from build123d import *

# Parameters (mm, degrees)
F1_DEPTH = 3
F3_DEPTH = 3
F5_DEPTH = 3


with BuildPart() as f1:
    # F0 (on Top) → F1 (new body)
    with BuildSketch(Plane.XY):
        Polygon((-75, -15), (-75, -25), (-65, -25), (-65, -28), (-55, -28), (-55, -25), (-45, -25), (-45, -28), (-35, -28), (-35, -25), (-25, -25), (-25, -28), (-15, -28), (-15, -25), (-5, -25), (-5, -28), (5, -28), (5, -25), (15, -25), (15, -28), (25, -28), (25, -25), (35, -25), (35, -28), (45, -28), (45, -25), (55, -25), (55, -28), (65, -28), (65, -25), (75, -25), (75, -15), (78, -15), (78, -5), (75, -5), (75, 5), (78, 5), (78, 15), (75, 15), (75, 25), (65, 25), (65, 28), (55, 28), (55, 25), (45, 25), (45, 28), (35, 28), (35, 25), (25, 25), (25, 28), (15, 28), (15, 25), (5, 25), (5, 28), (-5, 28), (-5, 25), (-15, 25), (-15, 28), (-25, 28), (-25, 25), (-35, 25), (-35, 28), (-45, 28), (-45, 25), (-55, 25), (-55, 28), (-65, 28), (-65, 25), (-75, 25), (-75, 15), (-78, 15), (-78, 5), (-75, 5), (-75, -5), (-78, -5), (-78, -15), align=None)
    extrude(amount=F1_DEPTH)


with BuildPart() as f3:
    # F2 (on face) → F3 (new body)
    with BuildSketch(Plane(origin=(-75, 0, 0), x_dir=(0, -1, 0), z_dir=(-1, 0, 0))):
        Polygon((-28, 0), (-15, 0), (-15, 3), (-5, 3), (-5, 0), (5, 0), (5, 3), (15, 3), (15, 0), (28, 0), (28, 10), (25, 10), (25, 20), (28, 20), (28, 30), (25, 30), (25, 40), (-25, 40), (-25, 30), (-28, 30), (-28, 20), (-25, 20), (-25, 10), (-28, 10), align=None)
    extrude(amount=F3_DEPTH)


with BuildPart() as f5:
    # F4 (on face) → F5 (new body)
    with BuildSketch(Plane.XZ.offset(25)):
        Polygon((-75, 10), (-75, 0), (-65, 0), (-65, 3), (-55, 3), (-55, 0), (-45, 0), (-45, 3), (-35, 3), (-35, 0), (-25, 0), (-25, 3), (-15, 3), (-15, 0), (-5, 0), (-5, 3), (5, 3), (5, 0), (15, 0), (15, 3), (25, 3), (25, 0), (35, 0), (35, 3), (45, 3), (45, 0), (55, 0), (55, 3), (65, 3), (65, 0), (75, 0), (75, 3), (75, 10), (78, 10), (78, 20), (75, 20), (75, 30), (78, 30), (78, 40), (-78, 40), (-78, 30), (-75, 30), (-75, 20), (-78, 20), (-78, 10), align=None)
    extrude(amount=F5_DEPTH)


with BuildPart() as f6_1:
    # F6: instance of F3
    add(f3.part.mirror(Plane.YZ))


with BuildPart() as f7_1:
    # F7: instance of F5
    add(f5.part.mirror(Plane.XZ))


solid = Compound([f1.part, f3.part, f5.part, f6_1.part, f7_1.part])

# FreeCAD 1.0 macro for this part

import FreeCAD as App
import Part
import Sketcher

V = App.Vector
Q = App.Units.Quantity

doc = App.newDocument("Part")
params = doc.addObject("Spreadsheet::Sheet", "Params")
for row, (alias, value) in enumerate([
    ("sketch1_width", "10 mm"),
    ("sketch1_width2", "3 mm"),
    ("pad1_length", "3 mm"),
    ("sketch2_width", "13 mm"),
    ("sketch2_width2", "10 mm"),
    ("sketch2_width3", "3 mm"),
    ("pad2_length", "3 mm"),
    ("sketch3_width", "10 mm"),
    ("sketch3_width2", "3 mm"),
    ("pad3_length", "3 mm"),
], start=1):
    params.set(f"A{row}", alias)
    params.set(f"B{row}", "=" + value)
    params.setAlias(f"B{row}", alias)

body = doc.addObject("PartDesign::Body", "Body")

# Sketch on XY plane
sketch1 = body.newObject("Sketcher::SketchObject", "Sketch")
sketch1.AttachmentSupport = (doc.getObject("XY_Plane"), [""])
sketch1.MapMode = "FlatFace"
sketch1.addGeometry(Part.LineSegment(V(-75, -15, 0), V(-75, -25, 0)), False)
sketch1.addGeometry(Part.LineSegment(V(-75, -25, 0), V(-65, -25, 0)), False)
sketch1.addGeometry(Part.LineSegment(V(-65, -25, 0), V(-65, -28, 0)), False)
sketch1.addGeometry(Part.LineSegment(V(-65, -28, 0), V(-55, -28, 0)), False)
sketch1.addGeometry(Part.LineSegment(V(-55, -28, 0), V(-55, -25, 0)), False)
sketch1.addGeometry(Part.LineSegment(V(-55, -25, 0), V(-45, -25, 0)), False)
sketch1.addGeometry(Part.LineSegment(V(-45, -25, 0), V(-45, -28, 0)), False)
sketch1.addGeometry(Part.LineSegment(V(-45, -28, 0), V(-35, -28, 0)), False)
sketch1.addGeometry(Part.LineSegment(V(-35, -28, 0), V(-35, -25, 0)), False)
sketch1.addGeometry(Part.LineSegment(V(-35, -25, 0), V(-25, -25, 0)), False)
sketch1.addGeometry(Part.LineSegment(V(-25, -25, 0), V(-25, -28, 0)), False)
sketch1.addGeometry(Part.LineSegment(V(-25, -28, 0), V(-15, -28, 0)), False)
sketch1.addGeometry(Part.LineSegment(V(-15, -28, 0), V(-15, -25, 0)), False)
sketch1.addGeometry(Part.LineSegment(V(-15, -25, 0), V(-5, -25, 0)), False)
sketch1.addGeometry(Part.LineSegment(V(-5, -25, 0), V(-5, -28, 0)), False)
sketch1.addGeometry(Part.LineSegment(V(-5, -28, 0), V(5, -28, 0)), False)
sketch1.addGeometry(Part.LineSegment(V(5, -28, 0), V(5, -25, 0)), False)
sketch1.addGeometry(Part.LineSegment(V(5, -25, 0), V(15, -25, 0)), False)
sketch1.addGeometry(Part.LineSegment(V(15, -25, 0), V(15, -28, 0)), False)
sketch1.addGeometry(Part.LineSegment(V(15, -28, 0), V(25, -28, 0)), False)
sketch1.addGeometry(Part.LineSegment(V(25, -28, 0), V(25, -25, 0)), False)
sketch1.addGeometry(Part.LineSegment(V(25, -25, 0), V(35, -25, 0)), False)
sketch1.addGeometry(Part.LineSegment(V(35, -25, 0), V(35, -28, 0)), False)
sketch1.addGeometry(Part.LineSegment(V(35, -28, 0), V(45, -28, 0)), False)
sketch1.addGeometry(Part.LineSegment(V(45, -28, 0), V(45, -25, 0)), False)
sketch1.addGeometry(Part.LineSegment(V(45, -25, 0), V(55, -25, 0)), False)
sketch1.addGeometry(Part.LineSegment(V(55, -25, 0), V(55, -28, 0)), False)
sketch1.addGeometry(Part.LineSegment(V(55, -28, 0), V(65, -28, 0)), False)
sketch1.addGeometry(Part.LineSegment(V(65, -28, 0), V(65, -25, 0)), False)
sketch1.addGeometry(Part.LineSegment(V(65, -25, 0), V(75, -25, 0)), False)
sketch1.addGeometry(Part.LineSegment(V(75, -25, 0), V(75, -15, 0)), False)
sketch1.addGeometry(Part.LineSegment(V(75, -15, 0), V(78, -15, 0)), False)
sketch1.addGeometry(Part.LineSegment(V(78, -15, 0), V(78, -5, 0)), False)
sketch1.addGeometry(Part.LineSegment(V(78, -5, 0), V(75, -5, 0)), False)
sketch1.addGeometry(Part.LineSegment(V(75, -5, 0), V(75, 5, 0)), False)
sketch1.addGeometry(Part.LineSegment(V(75, 5, 0), V(78, 5, 0)), False)
sketch1.addGeometry(Part.LineSegment(V(78, 5, 0), V(78, 15, 0)), False)
sketch1.addGeometry(Part.LineSegment(V(78, 15, 0), V(75, 15, 0)), False)
sketch1.addGeometry(Part.LineSegment(V(75, 15, 0), V(75, 25, 0)), False)
sketch1.addGeometry(Part.LineSegment(V(75, 25, 0), V(65, 25, 0)), False)
sketch1.addGeometry(Part.LineSegment(V(65, 25, 0), V(65, 28, 0)), False)
sketch1.addGeometry(Part.LineSegment(V(65, 28, 0), V(55, 28, 0)), False)
sketch1.addGeometry(Part.LineSegment(V(55, 28, 0), V(55, 25, 0)), False)
sketch1.addGeometry(Part.LineSegment(V(55, 25, 0), V(45, 25, 0)), False)
sketch1.addGeometry(Part.LineSegment(V(45, 25, 0), V(45, 28, 0)), False)
sketch1.addGeometry(Part.LineSegment(V(45, 28, 0), V(35, 28, 0)), False)
sketch1.addGeometry(Part.LineSegment(V(35, 28, 0), V(35, 25, 0)), False)
sketch1.addGeometry(Part.LineSegment(V(35, 25, 0), V(25, 25, 0)), False)
sketch1.addGeometry(Part.LineSegment(V(25, 25, 0), V(25, 28, 0)), False)
sketch1.addGeometry(Part.LineSegment(V(25, 28, 0), V(15, 28, 0)), False)
sketch1.addGeometry(Part.LineSegment(V(15, 28, 0), V(15, 25, 0)), False)
sketch1.addGeometry(Part.LineSegment(V(15, 25, 0), V(5, 25, 0)), False)
sketch1.addGeometry(Part.LineSegment(V(5, 25, 0), V(5, 28, 0)), False)
sketch1.addGeometry(Part.LineSegment(V(5, 28, 0), V(-5, 28, 0)), False)
sketch1.addGeometry(Part.LineSegment(V(-5, 28, 0), V(-5, 25, 0)), False)
sketch1.addGeometry(Part.LineSegment(V(-5, 25, 0), V(-15, 25, 0)), False)
sketch1.addGeometry(Part.LineSegment(V(-15, 25, 0), V(-15, 28, 0)), False)
sketch1.addGeometry(Part.LineSegment(V(-15, 28, 0), V(-25, 28, 0)), False)
sketch1.addGeometry(Part.LineSegment(V(-25, 28, 0), V(-25, 25, 0)), False)
sketch1.addGeometry(Part.LineSegment(V(-25, 25, 0), V(-35, 25, 0)), False)
sketch1.addGeometry(Part.LineSegment(V(-35, 25, 0), V(-35, 28, 0)), False)
sketch1.addGeometry(Part.LineSegment(V(-35, 28, 0), V(-45, 28, 0)), False)
sketch1.addGeometry(Part.LineSegment(V(-45, 28, 0), V(-45, 25, 0)), False)
sketch1.addGeometry(Part.LineSegment(V(-45, 25, 0), V(-55, 25, 0)), False)
sketch1.addGeometry(Part.LineSegment(V(-55, 25, 0), V(-55, 28, 0)), False)
sketch1.addGeometry(Part.LineSegment(V(-55, 28, 0), V(-65, 28, 0)), False)
sketch1.addGeometry(Part.LineSegment(V(-65, 28, 0), V(-65, 25, 0)), False)
sketch1.addGeometry(Part.LineSegment(V(-65, 25, 0), V(-75, 25, 0)), False)
sketch1.addGeometry(Part.LineSegment(V(-75, 25, 0), V(-75, 15, 0)), False)
sketch1.addGeometry(Part.LineSegment(V(-75, 15, 0), V(-78, 15, 0)), False)
sketch1.addGeometry(Part.LineSegment(V(-78, 15, 0), V(-78, 5, 0)), False)
sketch1.addGeometry(Part.LineSegment(V(-78, 5, 0), V(-75, 5, 0)), False)
sketch1.addGeometry(Part.LineSegment(V(-75, 5, 0), V(-75, -5, 0)), False)
sketch1.addGeometry(Part.LineSegment(V(-75, -5, 0), V(-78, -5, 0)), False)
sketch1.addGeometry(Part.LineSegment(V(-78, -5, 0), V(-78, -15, 0)), False)
sketch1.addGeometry(Part.LineSegment(V(-78, -15, 0), V(-75, -15, 0)), False)
sketch1.addConstraint(Sketcher.Constraint("Coincident", 0, 2, 1, 1))
sketch1.addConstraint(Sketcher.Constraint("Coincident", 1, 2, 2, 1))
sketch1.addConstraint(Sketcher.Constraint("Coincident", 2, 2, 3, 1))
sketch1.addConstraint(Sketcher.Constraint("Coincident", 3, 2, 4, 1))
sketch1.addConstraint(Sketcher.Constraint("Coincident", 4, 2, 5, 1))
sketch1.addConstraint(Sketcher.Constraint("Coincident", 5, 2, 6, 1))
sketch1.addConstraint(Sketcher.Constraint("Coincident", 6, 2, 7, 1))
sketch1.addConstraint(Sketcher.Constraint("Coincident", 7, 2, 8, 1))
sketch1.addConstraint(Sketcher.Constraint("Coincident", 8, 2, 9, 1))
sketch1.addConstraint(Sketcher.Constraint("Coincident", 9, 2, 10, 1))
sketch1.addConstraint(Sketcher.Constraint("Coincident", 10, 2, 11, 1))
sketch1.addConstraint(Sketcher.Constraint("Coincident", 11, 2, 12, 1))
sketch1.addConstraint(Sketcher.Constraint("Coincident", 12, 2, 13, 1))
sketch1.addConstraint(Sketcher.Constraint("Coincident", 13, 2, 14, 1))
sketch1.addConstraint(Sketcher.Constraint("Coincident", 14, 2, 15, 1))
sketch1.addConstraint(Sketcher.Constraint("Coincident", 15, 2, 16, 1))
sketch1.addConstraint(Sketcher.Constraint("Coincident", 16, 2, 17, 1))
sketch1.addConstraint(Sketcher.Constraint("Coincident", 17, 2, 18, 1))
sketch1.addConstraint(Sketcher.Constraint("Coincident", 18, 2, 19, 1))
sketch1.addConstraint(Sketcher.Constraint("Coincident", 19, 2, 20, 1))
sketch1.addConstraint(Sketcher.Constraint("Coincident", 20, 2, 21, 1))
sketch1.addConstraint(Sketcher.Constraint("Coincident", 21, 2, 22, 1))
sketch1.addConstraint(Sketcher.Constraint("Coincident", 22, 2, 23, 1))
sketch1.addConstraint(Sketcher.Constraint("Coincident", 23, 2, 24, 1))
sketch1.addConstraint(Sketcher.Constraint("Coincident", 24, 2, 25, 1))
sketch1.addConstraint(Sketcher.Constraint("Coincident", 25, 2, 26, 1))
sketch1.addConstraint(Sketcher.Constraint("Coincident", 26, 2, 27, 1))
sketch1.addConstraint(Sketcher.Constraint("Coincident", 27, 2, 28, 1))
sketch1.addConstraint(Sketcher.Constraint("Coincident", 28, 2, 29, 1))
sketch1.addConstraint(Sketcher.Constraint("Coincident", 29, 2, 30, 1))
sketch1.addConstraint(Sketcher.Constraint("Coincident", 30, 2, 31, 1))
sketch1.addConstraint(Sketcher.Constraint("Coincident", 31, 2, 32, 1))
sketch1.addConstraint(Sketcher.Constraint("Coincident", 32, 2, 33, 1))
sketch1.addConstraint(Sketcher.Constraint("Coincident", 33, 2, 34, 1))
sketch1.addConstraint(Sketcher.Constraint("Coincident", 34, 2, 35, 1))
sketch1.addConstraint(Sketcher.Constraint("Coincident", 35, 2, 36, 1))
sketch1.addConstraint(Sketcher.Constraint("Coincident", 36, 2, 37, 1))
sketch1.addConstraint(Sketcher.Constraint("Coincident", 37, 2, 38, 1))
sketch1.addConstraint(Sketcher.Constraint("Coincident", 38, 2, 39, 1))
sketch1.addConstraint(Sketcher.Constraint("Coincident", 39, 2, 40, 1))
sketch1.addConstraint(Sketcher.Constraint("Coincident", 40, 2, 41, 1))
sketch1.addConstraint(Sketcher.Constraint("Coincident", 41, 2, 42, 1))
sketch1.addConstraint(Sketcher.Constraint("Coincident", 42, 2, 43, 1))
sketch1.addConstraint(Sketcher.Constraint("Coincident", 43, 2, 44, 1))
sketch1.addConstraint(Sketcher.Constraint("Coincident", 44, 2, 45, 1))
sketch1.addConstraint(Sketcher.Constraint("Coincident", 45, 2, 46, 1))
sketch1.addConstraint(Sketcher.Constraint("Coincident", 46, 2, 47, 1))
sketch1.addConstraint(Sketcher.Constraint("Coincident", 47, 2, 48, 1))
sketch1.addConstraint(Sketcher.Constraint("Coincident", 48, 2, 49, 1))
sketch1.addConstraint(Sketcher.Constraint("Coincident", 49, 2, 50, 1))
sketch1.addConstraint(Sketcher.Constraint("Coincident", 50, 2, 51, 1))
sketch1.addConstraint(Sketcher.Constraint("Coincident", 51, 2, 52, 1))
sketch1.addConstraint(Sketcher.Constraint("Coincident", 52, 2, 53, 1))
sketch1.addConstraint(Sketcher.Constraint("Coincident", 53, 2, 54, 1))
sketch1.addConstraint(Sketcher.Constraint("Coincident", 54, 2, 55, 1))
sketch1.addConstraint(Sketcher.Constraint("Coincident", 55, 2, 56, 1))
sketch1.addConstraint(Sketcher.Constraint("Coincident", 56, 2, 57, 1))
sketch1.addConstraint(Sketcher.Constraint("Coincident", 57, 2, 58, 1))
sketch1.addConstraint(Sketcher.Constraint("Coincident", 58, 2, 59, 1))
sketch1.addConstraint(Sketcher.Constraint("Coincident", 59, 2, 60, 1))
sketch1.addConstraint(Sketcher.Constraint("Coincident", 60, 2, 61, 1))
sketch1.addConstraint(Sketcher.Constraint("Coincident", 61, 2, 62, 1))
sketch1.addConstraint(Sketcher.Constraint("Coincident", 62, 2, 63, 1))
sketch1.addConstraint(Sketcher.Constraint("Coincident", 63, 2, 64, 1))
sketch1.addConstraint(Sketcher.Constraint("Coincident", 64, 2, 65, 1))
sketch1.addConstraint(Sketcher.Constraint("Coincident", 65, 2, 66, 1))
sketch1.addConstraint(Sketcher.Constraint("Coincident", 66, 2, 67, 1))
sketch1.addConstraint(Sketcher.Constraint("Coincident", 67, 2, 68, 1))
sketch1.addConstraint(Sketcher.Constraint("Coincident", 68, 2, 69, 1))
sketch1.addConstraint(Sketcher.Constraint("Coincident", 69, 2, 70, 1))
sketch1.addConstraint(Sketcher.Constraint("Coincident", 70, 2, 71, 1))
sketch1.addConstraint(Sketcher.Constraint("Coincident", 71, 2, 72, 1))
sketch1.addConstraint(Sketcher.Constraint("Coincident", 72, 2, 73, 1))
sketch1.addConstraint(Sketcher.Constraint("Coincident", 73, 2, 74, 1))
sketch1.addConstraint(Sketcher.Constraint("Coincident", 74, 2, 75, 1))
sketch1.addConstraint(Sketcher.Constraint("Coincident", 75, 2, 0, 1))
sketch1.addConstraint(Sketcher.Constraint("Vertical", 0))
sketch1.addConstraint(Sketcher.Constraint("Horizontal", 1))
sketch1.addConstraint(Sketcher.Constraint("Vertical", 2))
sketch1.addConstraint(Sketcher.Constraint("Horizontal", 3))
sketch1.addConstraint(Sketcher.Constraint("Vertical", 4))
sketch1.addConstraint(Sketcher.Constraint("Horizontal", 5))
sketch1.addConstraint(Sketcher.Constraint("Vertical", 6))
sketch1.addConstraint(Sketcher.Constraint("Horizontal", 7))
sketch1.addConstraint(Sketcher.Constraint("Vertical", 8))
sketch1.addConstraint(Sketcher.Constraint("Horizontal", 9))
sketch1.addConstraint(Sketcher.Constraint("Vertical", 10))
sketch1.addConstraint(Sketcher.Constraint("Horizontal", 11))
sketch1.addConstraint(Sketcher.Constraint("Vertical", 12))
sketch1.addConstraint(Sketcher.Constraint("Horizontal", 13))
sketch1.addConstraint(Sketcher.Constraint("Vertical", 14))
sketch1.addConstraint(Sketcher.Constraint("Horizontal", 15))
sketch1.addConstraint(Sketcher.Constraint("Vertical", 16))
sketch1.addConstraint(Sketcher.Constraint("Horizontal", 17))
sketch1.addConstraint(Sketcher.Constraint("Vertical", 18))
sketch1.addConstraint(Sketcher.Constraint("Horizontal", 19))
sketch1.addConstraint(Sketcher.Constraint("Vertical", 20))
sketch1.addConstraint(Sketcher.Constraint("Horizontal", 21))
sketch1.addConstraint(Sketcher.Constraint("Vertical", 22))
sketch1.addConstraint(Sketcher.Constraint("Horizontal", 23))
sketch1.addConstraint(Sketcher.Constraint("Vertical", 24))
sketch1.addConstraint(Sketcher.Constraint("Horizontal", 25))
sketch1.addConstraint(Sketcher.Constraint("Vertical", 26))
sketch1.addConstraint(Sketcher.Constraint("Horizontal", 27))
sketch1.addConstraint(Sketcher.Constraint("Vertical", 28))
sketch1.addConstraint(Sketcher.Constraint("Horizontal", 29))
sketch1.addConstraint(Sketcher.Constraint("Vertical", 30))
sketch1.addConstraint(Sketcher.Constraint("Horizontal", 31))
sketch1.addConstraint(Sketcher.Constraint("Vertical", 32))
sketch1.addConstraint(Sketcher.Constraint("Horizontal", 33))
sketch1.addConstraint(Sketcher.Constraint("Vertical", 34))
sketch1.addConstraint(Sketcher.Constraint("Horizontal", 35))
sketch1.addConstraint(Sketcher.Constraint("Vertical", 36))
sketch1.addConstraint(Sketcher.Constraint("Horizontal", 37))
sketch1.addConstraint(Sketcher.Constraint("Vertical", 38))
sketch1.addConstraint(Sketcher.Constraint("Horizontal", 39))
sketch1.addConstraint(Sketcher.Constraint("Vertical", 40))
sketch1.addConstraint(Sketcher.Constraint("Horizontal", 41))
sketch1.addConstraint(Sketcher.Constraint("Vertical", 42))
sketch1.addConstraint(Sketcher.Constraint("Horizontal", 43))
sketch1.addConstraint(Sketcher.Constraint("Vertical", 44))
sketch1.addConstraint(Sketcher.Constraint("Horizontal", 45))
sketch1.addConstraint(Sketcher.Constraint("Vertical", 46))
sketch1.addConstraint(Sketcher.Constraint("Horizontal", 47))
sketch1.addConstraint(Sketcher.Constraint("Vertical", 48))
sketch1.addConstraint(Sketcher.Constraint("Horizontal", 49))
sketch1.addConstraint(Sketcher.Constraint("Vertical", 50))
sketch1.addConstraint(Sketcher.Constraint("Horizontal", 51))
sketch1.addConstraint(Sketcher.Constraint("Vertical", 52))
sketch1.addConstraint(Sketcher.Constraint("Horizontal", 53))
sketch1.addConstraint(Sketcher.Constraint("Vertical", 54))
sketch1.addConstraint(Sketcher.Constraint("Horizontal", 55))
sketch1.addConstraint(Sketcher.Constraint("Vertical", 56))
sketch1.addConstraint(Sketcher.Constraint("Horizontal", 57))
sketch1.addConstraint(Sketcher.Constraint("Vertical", 58))
sketch1.addConstraint(Sketcher.Constraint("Horizontal", 59))
sketch1.addConstraint(Sketcher.Constraint("Vertical", 60))
sketch1.addConstraint(Sketcher.Constraint("Horizontal", 61))
sketch1.addConstraint(Sketcher.Constraint("Vertical", 62))
sketch1.addConstraint(Sketcher.Constraint("Horizontal", 63))
sketch1.addConstraint(Sketcher.Constraint("Vertical", 64))
sketch1.addConstraint(Sketcher.Constraint("Horizontal", 65))
sketch1.addConstraint(Sketcher.Constraint("Vertical", 66))
sketch1.addConstraint(Sketcher.Constraint("Horizontal", 67))
sketch1.addConstraint(Sketcher.Constraint("Vertical", 68))
sketch1.addConstraint(Sketcher.Constraint("Horizontal", 69))
sketch1.addConstraint(Sketcher.Constraint("Vertical", 70))
sketch1.addConstraint(Sketcher.Constraint("Horizontal", 71))
sketch1.addConstraint(Sketcher.Constraint("Vertical", 72))
sketch1.addConstraint(Sketcher.Constraint("Horizontal", 73))
sketch1.addConstraint(Sketcher.Constraint("Vertical", 74))
sketch1.addConstraint(Sketcher.Constraint("Horizontal", 75))
sketch1.addConstraint(Sketcher.Constraint("Symmetric", 0, 2, 38, 2, -1, 1))
sketch1.addConstraint(Sketcher.Constraint("Symmetric", 2, 2, 40, 2, -1, 1))
sketch1.addConstraint(Sketcher.Constraint("Symmetric", 4, 2, 42, 2, -1, 1))
sketch1.addConstraint(Sketcher.Constraint("Symmetric", 6, 2, 44, 2, -1, 1))
sketch1.addConstraint(Sketcher.Constraint("Symmetric", 8, 2, 46, 2, -1, 1))
sketch1.addConstraint(Sketcher.Constraint("Symmetric", 10, 2, 48, 2, -1, 1))
sketch1.addConstraint(Sketcher.Constraint("Symmetric", 12, 2, 50, 2, -1, 1))
sketch1.addConstraint(Sketcher.Constraint("Symmetric", 14, 2, 52, 2, -1, 1))
sketch1.addConstraint(Sketcher.Constraint("Symmetric", 16, 2, 54, 2, -1, 1))
sketch1.addConstraint(Sketcher.Constraint("Symmetric", 18, 2, 56, 2, -1, 1))
sketch1.addConstraint(Sketcher.Constraint("Symmetric", 20, 2, 58, 2, -1, 1))
sketch1.addConstraint(Sketcher.Constraint("Symmetric", 22, 2, 60, 2, -1, 1))
sketch1.addConstraint(Sketcher.Constraint("Symmetric", 24, 2, 62, 2, -1, 1))
sketch1.addConstraint(Sketcher.Constraint("Symmetric", 26, 2, 64, 2, -1, 1))
sketch1.addConstraint(Sketcher.Constraint("Symmetric", 28, 2, 66, 2, -1, 1))
sketch1.addConstraint(Sketcher.Constraint("Symmetric", 30, 2, 68, 2, -1, 1))
sketch1.addConstraint(Sketcher.Constraint("Symmetric", 32, 2, 70, 2, -1, 1))
sketch1.addConstraint(Sketcher.Constraint("Symmetric", 34, 2, 72, 2, -1, 1))
sketch1.addConstraint(Sketcher.Constraint("Symmetric", 36, 2, 74, 2, -1, 1))
sketch1.addConstraint(Sketcher.Constraint("Symmetric", 13, 2, 16, 2, -2))
sketch1.addConstraint(Sketcher.Constraint("Symmetric", 11, 2, 18, 2, -2))
sketch1.addConstraint(Sketcher.Constraint("Symmetric", 9, 2, 20, 2, -2))
sketch1.addConstraint(Sketcher.Constraint("Symmetric", 7, 2, 22, 2, -2))
sketch1.addConstraint(Sketcher.Constraint("Symmetric", 5, 2, 24, 2, -2))
sketch1.addConstraint(Sketcher.Constraint("Symmetric", 3, 2, 26, 2, -2))
sketch1.addConstraint(Sketcher.Constraint("Symmetric", 1, 2, 28, 2, -2))
sketch1.addConstraint(Sketcher.Constraint("Symmetric", 37, 2, 68, 2, -2))
sketch1.addConstraint(Sketcher.Constraint("Symmetric", 35, 2, 70, 2, -2))
sketch1.addConstraint(Sketcher.Constraint("Horizontal", 1, 2, 4, 2))
sketch1.addConstraint(Sketcher.Constraint("Horizontal", 3, 2, 6, 2))
sketch1.addConstraint(Sketcher.Constraint("Horizontal", 5, 2, 8, 2))
sketch1.addConstraint(Sketcher.Constraint("Horizontal", 7, 2, 10, 2))
sketch1.addConstraint(Sketcher.Constraint("Horizontal", 9, 2, 12, 2))
sketch1.addConstraint(Sketcher.Constraint("Horizontal", 11, 2, 14, 2))
sketch1.addConstraint(Sketcher.Constraint("Vertical", 30, 2, 33, 2))
sketch1.addConstraint(Sketcher.Constraint("Equal", 1, 3))
sketch1.addConstraint(Sketcher.Constraint("Equal", 3, 5))
sketch1.addConstraint(Sketcher.Constraint("Equal", 5, 7))
sketch1.addConstraint(Sketcher.Constraint("Equal", 7, 9))
sketch1.addConstraint(Sketcher.Constraint("Equal", 9, 11))
sketch1.addConstraint(Sketcher.Constraint("Equal", 11, 13))
sketch1.addConstraint(Sketcher.Constraint("Equal", 13, 15))
sketch1.addConstraint(Sketcher.Constraint("Equal", 67, 0))
sketch1.addConstraint(Sketcher.Constraint("Equal", 75, 2))
sketch1.addConstraint(Sketcher.Constraint("Equal", 30, 32))
sketch1.addConstraint(Sketcher.Constraint("Equal", 32, 34))
sketch1.addConstraint(Sketcher.Constraint("DistanceX", 1, 1, 1, 2, Q("10 mm")))
sketch1.addConstraint(Sketcher.Constraint("DistanceX", 31, 1, 31, 2, Q("3 mm")))
sketch1.setExpression("Constraints[198]", "Params.sketch1_width")
sketch1.setExpression("Constraints[199]", "Params.sketch1_width2")
pad1 = body.newObject("PartDesign::Pad", "Pad")
pad1.Profile = sketch1
pad1.setExpression("Length", "Params.pad1_length")
body2 = doc.addObject("PartDesign::Body", "Body001")

# Sketch on YZ plane
sketch2 = body2.newObject("Sketcher::SketchObject", "Sketch001")
sketch2.AttachmentSupport = (doc.getObject("YZ_Plane001"), [""])
sketch2.MapMode = "FlatFace"
sketch2.AttachmentOffset = App.Placement(V(0, 0, -75), App.Rotation())
sketch2.addGeometry(Part.LineSegment(V(28, 0, 0), V(15, 0, 0)), False)
sketch2.addGeometry(Part.LineSegment(V(15, 0, 0), V(15, 3, 0)), False)
sketch2.addGeometry(Part.LineSegment(V(15, 3, 0), V(5, 3, 0)), False)
sketch2.addGeometry(Part.LineSegment(V(5, 3, 0), V(5, 0, 0)), False)
sketch2.addGeometry(Part.LineSegment(V(5, 0, 0), V(-5, 0, 0)), False)
sketch2.addGeometry(Part.LineSegment(V(-5, 0, 0), V(-5, 3, 0)), False)
sketch2.addGeometry(Part.LineSegment(V(-5, 3, 0), V(-15, 3, 0)), False)
sketch2.addGeometry(Part.LineSegment(V(-15, 3, 0), V(-15, 0, 0)), False)
sketch2.addGeometry(Part.LineSegment(V(-15, 0, 0), V(-28, 0, 0)), False)
sketch2.addGeometry(Part.LineSegment(V(-28, 0, 0), V(-28, 10, 0)), False)
sketch2.addGeometry(Part.LineSegment(V(-28, 10, 0), V(-25, 10, 0)), False)
sketch2.addGeometry(Part.LineSegment(V(-25, 10, 0), V(-25, 20, 0)), False)
sketch2.addGeometry(Part.LineSegment(V(-25, 20, 0), V(-28, 20, 0)), False)
sketch2.addGeometry(Part.LineSegment(V(-28, 20, 0), V(-28, 30, 0)), False)
sketch2.addGeometry(Part.LineSegment(V(-28, 30, 0), V(-25, 30, 0)), False)
sketch2.addGeometry(Part.LineSegment(V(-25, 30, 0), V(-25, 40, 0)), False)
sketch2.addGeometry(Part.LineSegment(V(-25, 40, 0), V(25, 40, 0)), False)
sketch2.addGeometry(Part.LineSegment(V(25, 40, 0), V(25, 30, 0)), False)
sketch2.addGeometry(Part.LineSegment(V(25, 30, 0), V(28, 30, 0)), False)
sketch2.addGeometry(Part.LineSegment(V(28, 30, 0), V(28, 20, 0)), False)
sketch2.addGeometry(Part.LineSegment(V(28, 20, 0), V(25, 20, 0)), False)
sketch2.addGeometry(Part.LineSegment(V(25, 20, 0), V(25, 10, 0)), False)
sketch2.addGeometry(Part.LineSegment(V(25, 10, 0), V(28, 10, 0)), False)
sketch2.addGeometry(Part.LineSegment(V(28, 10, 0), V(28, 0, 0)), False)
sketch2.addConstraint(Sketcher.Constraint("Coincident", 0, 2, 1, 1))
sketch2.addConstraint(Sketcher.Constraint("Coincident", 1, 2, 2, 1))
sketch2.addConstraint(Sketcher.Constraint("Coincident", 2, 2, 3, 1))
sketch2.addConstraint(Sketcher.Constraint("Coincident", 3, 2, 4, 1))
sketch2.addConstraint(Sketcher.Constraint("Coincident", 4, 2, 5, 1))
sketch2.addConstraint(Sketcher.Constraint("Coincident", 5, 2, 6, 1))
sketch2.addConstraint(Sketcher.Constraint("Coincident", 6, 2, 7, 1))
sketch2.addConstraint(Sketcher.Constraint("Coincident", 7, 2, 8, 1))
sketch2.addConstraint(Sketcher.Constraint("Coincident", 8, 2, 9, 1))
sketch2.addConstraint(Sketcher.Constraint("Coincident", 9, 2, 10, 1))
sketch2.addConstraint(Sketcher.Constraint("Coincident", 10, 2, 11, 1))
sketch2.addConstraint(Sketcher.Constraint("Coincident", 11, 2, 12, 1))
sketch2.addConstraint(Sketcher.Constraint("Coincident", 12, 2, 13, 1))
sketch2.addConstraint(Sketcher.Constraint("Coincident", 13, 2, 14, 1))
sketch2.addConstraint(Sketcher.Constraint("Coincident", 14, 2, 15, 1))
sketch2.addConstraint(Sketcher.Constraint("Coincident", 15, 2, 16, 1))
sketch2.addConstraint(Sketcher.Constraint("Coincident", 16, 2, 17, 1))
sketch2.addConstraint(Sketcher.Constraint("Coincident", 17, 2, 18, 1))
sketch2.addConstraint(Sketcher.Constraint("Coincident", 18, 2, 19, 1))
sketch2.addConstraint(Sketcher.Constraint("Coincident", 19, 2, 20, 1))
sketch2.addConstraint(Sketcher.Constraint("Coincident", 20, 2, 21, 1))
sketch2.addConstraint(Sketcher.Constraint("Coincident", 21, 2, 22, 1))
sketch2.addConstraint(Sketcher.Constraint("Coincident", 22, 2, 23, 1))
sketch2.addConstraint(Sketcher.Constraint("Coincident", 23, 2, 0, 1))
sketch2.addConstraint(Sketcher.Constraint("Horizontal", 0))
sketch2.addConstraint(Sketcher.Constraint("Vertical", 1))
sketch2.addConstraint(Sketcher.Constraint("Horizontal", 2))
sketch2.addConstraint(Sketcher.Constraint("Vertical", 3))
sketch2.addConstraint(Sketcher.Constraint("Horizontal", 4))
sketch2.addConstraint(Sketcher.Constraint("Vertical", 5))
sketch2.addConstraint(Sketcher.Constraint("Horizontal", 6))
sketch2.addConstraint(Sketcher.Constraint("Vertical", 7))
sketch2.addConstraint(Sketcher.Constraint("Horizontal", 8))
sketch2.addConstraint(Sketcher.Constraint("Vertical", 9))
sketch2.addConstraint(Sketcher.Constraint("Horizontal", 10))
sketch2.addConstraint(Sketcher.Constraint("Vertical", 11))
sketch2.addConstraint(Sketcher.Constraint("Horizontal", 12))
sketch2.addConstraint(Sketcher.Constraint("Vertical", 13))
sketch2.addConstraint(Sketcher.Constraint("Horizontal", 14))
sketch2.addConstraint(Sketcher.Constraint("Vertical", 15))
sketch2.addConstraint(Sketcher.Constraint("Horizontal", 16))
sketch2.addConstraint(Sketcher.Constraint("Vertical", 17))
sketch2.addConstraint(Sketcher.Constraint("Horizontal", 18))
sketch2.addConstraint(Sketcher.Constraint("Vertical", 19))
sketch2.addConstraint(Sketcher.Constraint("Horizontal", 20))
sketch2.addConstraint(Sketcher.Constraint("Vertical", 21))
sketch2.addConstraint(Sketcher.Constraint("Horizontal", 22))
sketch2.addConstraint(Sketcher.Constraint("Vertical", 23))
sketch2.addConstraint(Sketcher.Constraint("Symmetric", 3, 2, 4, 2, -1, 1))
sketch2.addConstraint(Sketcher.Constraint("Symmetric", 0, 2, 7, 2, -1, 1))
sketch2.addConstraint(Sketcher.Constraint("Symmetric", 14, 2, 17, 2, -2))
sketch2.addConstraint(Sketcher.Constraint("Symmetric", 12, 2, 19, 2, -2))
sketch2.addConstraint(Sketcher.Constraint("Symmetric", 10, 2, 21, 2, -2))
sketch2.addConstraint(Sketcher.Constraint("Symmetric", 8, 2, 23, 2, -2))
sketch2.addConstraint(Sketcher.Constraint("Horizontal", 2, 2, 5, 2))
sketch2.addConstraint(Sketcher.Constraint("Vertical", 9, 2, 12, 2))
sketch2.addConstraint(Sketcher.Constraint("Vertical", 11, 2, 14, 2))
sketch2.addConstraint(Sketcher.Constraint("Equal", 2, 4))
sketch2.addConstraint(Sketcher.Constraint("Equal", 22, 1))
sketch2.addConstraint(Sketcher.Constraint("Equal", 6, 9))
sketch2.addConstraint(Sketcher.Constraint("Equal", 9, 11))
sketch2.addConstraint(Sketcher.Constraint("Equal", 11, 13))
sketch2.addConstraint(Sketcher.Constraint("Equal", 13, 15))
sketch2.addConstraint(Sketcher.Constraint("DistanceX", 0, 2, 0, 1, Q("13 mm")))
sketch2.addConstraint(Sketcher.Constraint("DistanceX", 2, 2, 2, 1, Q("10 mm")))
sketch2.addConstraint(Sketcher.Constraint("DistanceX", 10, 1, 10, 2, Q("3 mm")))
sketch2.setExpression("Constraints[63]", "Params.sketch2_width")
sketch2.setExpression("Constraints[64]", "Params.sketch2_width2")
sketch2.setExpression("Constraints[65]", "Params.sketch2_width3")
pad2 = body2.newObject("PartDesign::Pad", "Pad001")
pad2.Profile = sketch2
pad2.setExpression("Length", "Params.pad2_length")
pad2.Reversed = True
body3 = doc.addObject("PartDesign::Body", "Body002")

# Sketch on XZ plane
sketch3 = body3.newObject("Sketcher::SketchObject", "Sketch002")
sketch3.AttachmentSupport = (doc.getObject("XZ_Plane002"), [""])
sketch3.MapMode = "FlatFace"
sketch3.AttachmentOffset = App.Placement(V(0, 0, 25), App.Rotation())
sketch3.addGeometry(Part.LineSegment(V(-75, 10, 0), V(-75, 0, 0)), False)
sketch3.addGeometry(Part.LineSegment(V(-75, 0, 0), V(-65, 0, 0)), False)
sketch3.addGeometry(Part.LineSegment(V(-65, 0, 0), V(-65, 3, 0)), False)
sketch3.addGeometry(Part.LineSegment(V(-65, 3, 0), V(-55, 3, 0)), False)
sketch3.addGeometry(Part.LineSegment(V(-55, 3, 0), V(-55, 0, 0)), False)
sketch3.addGeometry(Part.LineSegment(V(-55, 0, 0), V(-45, 0, 0)), False)
sketch3.addGeometry(Part.LineSegment(V(-45, 0, 0), V(-45, 3, 0)), False)
sketch3.addGeometry(Part.LineSegment(V(-45, 3, 0), V(-35, 3, 0)), False)
sketch3.addGeometry(Part.LineSegment(V(-35, 3, 0), V(-35, 0, 0)), False)
sketch3.addGeometry(Part.LineSegment(V(-35, 0, 0), V(-25, 0, 0)), False)
sketch3.addGeometry(Part.LineSegment(V(-25, 0, 0), V(-25, 3, 0)), False)
sketch3.addGeometry(Part.LineSegment(V(-25, 3, 0), V(-15, 3, 0)), False)
sketch3.addGeometry(Part.LineSegment(V(-15, 3, 0), V(-15, 0, 0)), False)
sketch3.addGeometry(Part.LineSegment(V(-15, 0, 0), V(-5, 0, 0)), False)
sketch3.addGeometry(Part.LineSegment(V(-5, 0, 0), V(-5, 3, 0)), False)
sketch3.addGeometry(Part.LineSegment(V(-5, 3, 0), V(5, 3, 0)), False)
sketch3.addGeometry(Part.LineSegment(V(5, 3, 0), V(5, 0, 0)), False)
sketch3.addGeometry(Part.LineSegment(V(5, 0, 0), V(15, 0, 0)), False)
sketch3.addGeometry(Part.LineSegment(V(15, 0, 0), V(15, 3, 0)), False)
sketch3.addGeometry(Part.LineSegment(V(15, 3, 0), V(25, 3, 0)), False)
sketch3.addGeometry(Part.LineSegment(V(25, 3, 0), V(25, 0, 0)), False)
sketch3.addGeometry(Part.LineSegment(V(25, 0, 0), V(35, 0, 0)), False)
sketch3.addGeometry(Part.LineSegment(V(35, 0, 0), V(35, 3, 0)), False)
sketch3.addGeometry(Part.LineSegment(V(35, 3, 0), V(45, 3, 0)), False)
sketch3.addGeometry(Part.LineSegment(V(45, 3, 0), V(45, 0, 0)), False)
sketch3.addGeometry(Part.LineSegment(V(45, 0, 0), V(55, 0, 0)), False)
sketch3.addGeometry(Part.LineSegment(V(55, 0, 0), V(55, 3, 0)), False)
sketch3.addGeometry(Part.LineSegment(V(55, 3, 0), V(65, 3, 0)), False)
sketch3.addGeometry(Part.LineSegment(V(65, 3, 0), V(65, 0, 0)), False)
sketch3.addGeometry(Part.LineSegment(V(65, 0, 0), V(75, 0, 0)), False)
sketch3.addGeometry(Part.LineSegment(V(75, 0, 0), V(75, 10, 0)), False)
sketch3.addGeometry(Part.LineSegment(V(75, 10, 0), V(78, 10, 0)), False)
sketch3.addGeometry(Part.LineSegment(V(78, 10, 0), V(78, 20, 0)), False)
sketch3.addGeometry(Part.LineSegment(V(78, 20, 0), V(75, 20, 0)), False)
sketch3.addGeometry(Part.LineSegment(V(75, 20, 0), V(75, 30, 0)), False)
sketch3.addGeometry(Part.LineSegment(V(75, 30, 0), V(78, 30, 0)), False)
sketch3.addGeometry(Part.LineSegment(V(78, 30, 0), V(78, 40, 0)), False)
sketch3.addGeometry(Part.LineSegment(V(78, 40, 0), V(-78, 40, 0)), False)
sketch3.addGeometry(Part.LineSegment(V(-78, 40, 0), V(-78, 30, 0)), False)
sketch3.addGeometry(Part.LineSegment(V(-78, 30, 0), V(-75, 30, 0)), False)
sketch3.addGeometry(Part.LineSegment(V(-75, 30, 0), V(-75, 20, 0)), False)
sketch3.addGeometry(Part.LineSegment(V(-75, 20, 0), V(-78, 20, 0)), False)
sketch3.addGeometry(Part.LineSegment(V(-78, 20, 0), V(-78, 10, 0)), False)
sketch3.addGeometry(Part.LineSegment(V(-78, 10, 0), V(-75, 10, 0)), False)
sketch3.addConstraint(Sketcher.Constraint("Coincident", 0, 2, 1, 1))
sketch3.addConstraint(Sketcher.Constraint("Coincident", 1, 2, 2, 1))
sketch3.addConstraint(Sketcher.Constraint("Coincident", 2, 2, 3, 1))
sketch3.addConstraint(Sketcher.Constraint("Coincident", 3, 2, 4, 1))
sketch3.addConstraint(Sketcher.Constraint("Coincident", 4, 2, 5, 1))
sketch3.addConstraint(Sketcher.Constraint("Coincident", 5, 2, 6, 1))
sketch3.addConstraint(Sketcher.Constraint("Coincident", 6, 2, 7, 1))
sketch3.addConstraint(Sketcher.Constraint("Coincident", 7, 2, 8, 1))
sketch3.addConstraint(Sketcher.Constraint("Coincident", 8, 2, 9, 1))
sketch3.addConstraint(Sketcher.Constraint("Coincident", 9, 2, 10, 1))
sketch3.addConstraint(Sketcher.Constraint("Coincident", 10, 2, 11, 1))
sketch3.addConstraint(Sketcher.Constraint("Coincident", 11, 2, 12, 1))
sketch3.addConstraint(Sketcher.Constraint("Coincident", 12, 2, 13, 1))
sketch3.addConstraint(Sketcher.Constraint("Coincident", 13, 2, 14, 1))
sketch3.addConstraint(Sketcher.Constraint("Coincident", 14, 2, 15, 1))
sketch3.addConstraint(Sketcher.Constraint("Coincident", 15, 2, 16, 1))
sketch3.addConstraint(Sketcher.Constraint("Coincident", 16, 2, 17, 1))
sketch3.addConstraint(Sketcher.Constraint("Coincident", 17, 2, 18, 1))
sketch3.addConstraint(Sketcher.Constraint("Coincident", 18, 2, 19, 1))
sketch3.addConstraint(Sketcher.Constraint("Coincident", 19, 2, 20, 1))
sketch3.addConstraint(Sketcher.Constraint("Coincident", 20, 2, 21, 1))
sketch3.addConstraint(Sketcher.Constraint("Coincident", 21, 2, 22, 1))
sketch3.addConstraint(Sketcher.Constraint("Coincident", 22, 2, 23, 1))
sketch3.addConstraint(Sketcher.Constraint("Coincident", 23, 2, 24, 1))
sketch3.addConstraint(Sketcher.Constraint("Coincident", 24, 2, 25, 1))
sketch3.addConstraint(Sketcher.Constraint("Coincident", 25, 2, 26, 1))
sketch3.addConstraint(Sketcher.Constraint("Coincident", 26, 2, 27, 1))
sketch3.addConstraint(Sketcher.Constraint("Coincident", 27, 2, 28, 1))
sketch3.addConstraint(Sketcher.Constraint("Coincident", 28, 2, 29, 1))
sketch3.addConstraint(Sketcher.Constraint("Coincident", 29, 2, 30, 1))
sketch3.addConstraint(Sketcher.Constraint("Coincident", 30, 2, 31, 1))
sketch3.addConstraint(Sketcher.Constraint("Coincident", 31, 2, 32, 1))
sketch3.addConstraint(Sketcher.Constraint("Coincident", 32, 2, 33, 1))
sketch3.addConstraint(Sketcher.Constraint("Coincident", 33, 2, 34, 1))
sketch3.addConstraint(Sketcher.Constraint("Coincident", 34, 2, 35, 1))
sketch3.addConstraint(Sketcher.Constraint("Coincident", 35, 2, 36, 1))
sketch3.addConstraint(Sketcher.Constraint("Coincident", 36, 2, 37, 1))
sketch3.addConstraint(Sketcher.Constraint("Coincident", 37, 2, 38, 1))
sketch3.addConstraint(Sketcher.Constraint("Coincident", 38, 2, 39, 1))
sketch3.addConstraint(Sketcher.Constraint("Coincident", 39, 2, 40, 1))
sketch3.addConstraint(Sketcher.Constraint("Coincident", 40, 2, 41, 1))
sketch3.addConstraint(Sketcher.Constraint("Coincident", 41, 2, 42, 1))
sketch3.addConstraint(Sketcher.Constraint("Coincident", 42, 2, 43, 1))
sketch3.addConstraint(Sketcher.Constraint("Coincident", 43, 2, 0, 1))
sketch3.addConstraint(Sketcher.Constraint("Vertical", 0))
sketch3.addConstraint(Sketcher.Constraint("Horizontal", 1))
sketch3.addConstraint(Sketcher.Constraint("Vertical", 2))
sketch3.addConstraint(Sketcher.Constraint("Horizontal", 3))
sketch3.addConstraint(Sketcher.Constraint("Vertical", 4))
sketch3.addConstraint(Sketcher.Constraint("Horizontal", 5))
sketch3.addConstraint(Sketcher.Constraint("Vertical", 6))
sketch3.addConstraint(Sketcher.Constraint("Horizontal", 7))
sketch3.addConstraint(Sketcher.Constraint("Vertical", 8))
sketch3.addConstraint(Sketcher.Constraint("Horizontal", 9))
sketch3.addConstraint(Sketcher.Constraint("Vertical", 10))
sketch3.addConstraint(Sketcher.Constraint("Horizontal", 11))
sketch3.addConstraint(Sketcher.Constraint("Vertical", 12))
sketch3.addConstraint(Sketcher.Constraint("Horizontal", 13))
sketch3.addConstraint(Sketcher.Constraint("Vertical", 14))
sketch3.addConstraint(Sketcher.Constraint("Horizontal", 15))
sketch3.addConstraint(Sketcher.Constraint("Vertical", 16))
sketch3.addConstraint(Sketcher.Constraint("Horizontal", 17))
sketch3.addConstraint(Sketcher.Constraint("Vertical", 18))
sketch3.addConstraint(Sketcher.Constraint("Horizontal", 19))
sketch3.addConstraint(Sketcher.Constraint("Vertical", 20))
sketch3.addConstraint(Sketcher.Constraint("Horizontal", 21))
sketch3.addConstraint(Sketcher.Constraint("Vertical", 22))
sketch3.addConstraint(Sketcher.Constraint("Horizontal", 23))
sketch3.addConstraint(Sketcher.Constraint("Vertical", 24))
sketch3.addConstraint(Sketcher.Constraint("Horizontal", 25))
sketch3.addConstraint(Sketcher.Constraint("Vertical", 26))
sketch3.addConstraint(Sketcher.Constraint("Horizontal", 27))
sketch3.addConstraint(Sketcher.Constraint("Vertical", 28))
sketch3.addConstraint(Sketcher.Constraint("Horizontal", 29))
sketch3.addConstraint(Sketcher.Constraint("Vertical", 30))
sketch3.addConstraint(Sketcher.Constraint("Horizontal", 31))
sketch3.addConstraint(Sketcher.Constraint("Vertical", 32))
sketch3.addConstraint(Sketcher.Constraint("Horizontal", 33))
sketch3.addConstraint(Sketcher.Constraint("Vertical", 34))
sketch3.addConstraint(Sketcher.Constraint("Horizontal", 35))
sketch3.addConstraint(Sketcher.Constraint("Vertical", 36))
sketch3.addConstraint(Sketcher.Constraint("Horizontal", 37))
sketch3.addConstraint(Sketcher.Constraint("Vertical", 38))
sketch3.addConstraint(Sketcher.Constraint("Horizontal", 39))
sketch3.addConstraint(Sketcher.Constraint("Vertical", 40))
sketch3.addConstraint(Sketcher.Constraint("Horizontal", 41))
sketch3.addConstraint(Sketcher.Constraint("Vertical", 42))
sketch3.addConstraint(Sketcher.Constraint("Horizontal", 43))
sketch3.addConstraint(Sketcher.Constraint("Symmetric", 13, 2, 16, 2, -1, 1))
sketch3.addConstraint(Sketcher.Constraint("Symmetric", 9, 2, 20, 2, -1, 1))
sketch3.addConstraint(Sketcher.Constraint("Symmetric", 5, 2, 24, 2, -1, 1))
sketch3.addConstraint(Sketcher.Constraint("Symmetric", 1, 2, 28, 2, -1, 1))
sketch3.addConstraint(Sketcher.Constraint("Symmetric", 12, 2, 17, 2, -2))
sketch3.addConstraint(Sketcher.Constraint("Symmetric", 8, 2, 21, 2, -2))
sketch3.addConstraint(Sketcher.Constraint("Symmetric", 4, 2, 25, 2, -2))
sketch3.addConstraint(Sketcher.Constraint("Symmetric", 0, 2, 29, 2, -2))
sketch3.addConstraint(Sketcher.Constraint("Symmetric", 35, 2, 38, 2, -2))
sketch3.addConstraint(Sketcher.Constraint("Symmetric", 33, 2, 40, 2, -2))
sketch3.addConstraint(Sketcher.Constraint("Symmetric", 31, 2, 42, 2, -2))
sketch3.addConstraint(Sketcher.Constraint("Horizontal", 3, 2, 6, 2))
sketch3.addConstraint(Sketcher.Constraint("Horizontal", 7, 2, 10, 2))
sketch3.addConstraint(Sketcher.Constraint("Horizontal", 11, 2, 14, 2))
sketch3.addConstraint(Sketcher.Constraint("Horizontal", 15, 2, 18, 2))
sketch3.addConstraint(Sketcher.Constraint("Horizontal", 19, 2, 22, 2))
sketch3.addConstraint(Sketcher.Constraint("Horizontal", 23, 2, 26, 2))
sketch3.addConstraint(Sketcher.Constraint("Vertical", 30, 2, 33, 2))
sketch3.addConstraint(Sketcher.Constraint("Vertical", 32, 2, 35, 2))
sketch3.addConstraint(Sketcher.Constraint("Equal", 1, 3))
sketch3.addConstraint(Sketcher.Constraint("Equal", 3, 5))
sketch3.addConstraint(Sketcher.Constraint("Equal", 5, 7))
sketch3.addConstraint(Sketcher.Constraint("Equal", 7, 9))
sketch3.addConstraint(Sketcher.Constraint("Equal", 9, 11))
sketch3.addConstraint(Sketcher.Constraint("Equal", 11, 13))
sketch3.addConstraint(Sketcher.Constraint("Equal", 13, 15))
sketch3.addConstraint(Sketcher.Constraint("Equal", 29, 0))
sketch3.addConstraint(Sketcher.Constraint("Equal", 43, 2))
sketch3.addConstraint(Sketcher.Constraint("Equal", 30, 32))
sketch3.addConstraint(Sketcher.Constraint("Equal", 32, 34))
sketch3.addConstraint(Sketcher.Constraint("Equal", 34, 36))
sketch3.addConstraint(Sketcher.Constraint("DistanceX", 1, 1, 1, 2, Q("10 mm")))
sketch3.addConstraint(Sketcher.Constraint("DistanceX", 31, 1, 31, 2, Q("3 mm")))
sketch3.setExpression("Constraints[119]", "Params.sketch3_width")
sketch3.setExpression("Constraints[120]", "Params.sketch3_width2")
pad3 = body3.newObject("PartDesign::Pad", "Pad002")
pad3.Profile = sketch3
pad3.setExpression("Length", "Params.pad3_length")
body4 = doc.addObject("PartDesign::Body", "Body003")
doc.recompute()

mirroring = doc.addObject("Part::Mirroring", "Mirroring")
mirroring.Source = body2
mirroring.Base = V(0, 0, 0)
mirroring.Normal = V(1, 0, 0)
body4.BaseFeature = mirroring
doc.recompute()
body5 = doc.addObject("PartDesign::Body", "Body004")
doc.recompute()

mirroring2 = doc.addObject("Part::Mirroring", "Mirroring001")
mirroring2.Source = body3
mirroring2.Base = V(0, 0, 0)
mirroring2.Normal = V(0, -1, 0)
body5.BaseFeature = mirroring2
doc.recompute()
mirroring.Visibility = False
mirroring2.Visibility = False

doc.recompute()
